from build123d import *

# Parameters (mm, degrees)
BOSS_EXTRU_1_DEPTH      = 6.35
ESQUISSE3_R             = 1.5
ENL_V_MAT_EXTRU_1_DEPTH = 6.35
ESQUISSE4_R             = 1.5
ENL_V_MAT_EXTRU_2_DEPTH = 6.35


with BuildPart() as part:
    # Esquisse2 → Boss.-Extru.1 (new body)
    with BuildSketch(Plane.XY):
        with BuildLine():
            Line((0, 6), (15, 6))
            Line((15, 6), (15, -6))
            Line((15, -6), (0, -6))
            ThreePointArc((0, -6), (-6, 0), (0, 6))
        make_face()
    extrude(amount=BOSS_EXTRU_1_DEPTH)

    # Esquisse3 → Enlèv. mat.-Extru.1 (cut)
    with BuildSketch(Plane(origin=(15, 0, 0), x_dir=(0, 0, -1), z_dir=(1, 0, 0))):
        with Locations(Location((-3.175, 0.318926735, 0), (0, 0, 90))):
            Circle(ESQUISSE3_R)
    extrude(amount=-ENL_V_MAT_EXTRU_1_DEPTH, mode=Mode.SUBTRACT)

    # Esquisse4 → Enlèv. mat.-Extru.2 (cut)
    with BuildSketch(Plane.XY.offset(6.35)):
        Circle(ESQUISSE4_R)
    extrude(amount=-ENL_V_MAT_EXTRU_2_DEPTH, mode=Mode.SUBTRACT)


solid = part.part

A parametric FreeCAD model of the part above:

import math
import FreeCAD as App
import Part
import Sketcher

V = App.Vector
Q = App.Units.Quantity

doc = App.newDocument("Part")
body = doc.addObject("PartDesign::Body", "Body")

sketch1 = body.newObject("Sketcher::SketchObject", "Sketch")
sketch1.AttachmentSupport = (doc.getObject("XY_Plane"), [""])
sketch1.MapMode = "FlatFace"
sketch1.addGeometry([
    Part.LineSegment(V(15, 6, 0), V(0, 6, 0)),
    Part.ArcOfCircle(Part.Circle(V(0, 0, 0), V(0, 0, 1), 6), math.radians(90), math.radians(270)),
    Part.LineSegment(V(0, -6, 0), V(15, -6, 0)),
    Part.LineSegment(V(15, -6, 0), V(15, 6, 0)),
], False)
sketch1.addConstraint([
    Sketcher.Constraint("Tangent", 0, 2, 1, 1),
    Sketcher.Constraint("Tangent", 1, 2, 2, 1),
    Sketcher.Constraint("Coincident", 2, 2, 3, 1),
    Sketcher.Constraint("Coincident", 3, 2, 0, 1),
    Sketcher.Constraint("Horizontal", 0),
    Sketcher.Constraint("Horizontal", 2),
    Sketcher.Constraint("Vertical", 3),
    Sketcher.Constraint("Coincident", 1, 3, -1, 1),
    Sketcher.Constraint("Radius", 1, Q("6 mm")),
    Sketcher.Constraint("DistanceX", 0, 2, 0, 1, Q("15 mm")),
])
pad1 = body.newObject("PartDesign::Pad", "Pad")
pad1.Profile = sketch1
pad1.Length = 6.35

sketch2 = body.newObject("Sketcher::SketchObject", "Sketch001")
sketch2.AttachmentSupport = (doc.getObject("YZ_Plane"), [""])
sketch2.MapMode = "FlatFace"
sketch2.AttachmentOffset = App.Placement(V(0, 0, 15), App.Rotation())
sketch2.addGeometry(Part.Circle(V(0.3, 3.2, 0), V(0, 0, 1), 1.5), False)
sketch2.addConstraint([
    Sketcher.Constraint("Diameter", 0, Q("3 mm")),
    Sketcher.Constraint("DistanceY", -1, 1, 0, 3, Q("3.175 mm")),
    Sketcher.Constraint("DistanceX", -1, 1, 0, 3, Q("0.318927 mm")),
])
pocket1 = body.newObject("PartDesign::Pocket", "Pocket")
pocket1.Profile = sketch2
pocket1.Length = 6.35

sketch3 = body.newObject("Sketcher::SketchObject", "Sketch002")
sketch3.AttachmentSupport = (doc.getObject("XY_Plane"), [""])
sketch3.MapMode = "FlatFace"
sketch3.AttachmentOffset = App.Placement(V(0, 0, 6.35), App.Rotation())
sketch3.addGeometry(Part.Circle(V(0, 0, 0), V(0, 0, 1), 1.5), False)
sketch3.addConstraint([
    Sketcher.Constraint("Coincident", 0, 3, -1, 1),
    Sketcher.Constraint("Diameter", 0, Q("3 mm")),
])
pocket2 = body.newObject("PartDesign::Pocket", "Pocket001")
pocket2.Profile = sketch3
pocket2.Length = 6.35

doc.recompute()
